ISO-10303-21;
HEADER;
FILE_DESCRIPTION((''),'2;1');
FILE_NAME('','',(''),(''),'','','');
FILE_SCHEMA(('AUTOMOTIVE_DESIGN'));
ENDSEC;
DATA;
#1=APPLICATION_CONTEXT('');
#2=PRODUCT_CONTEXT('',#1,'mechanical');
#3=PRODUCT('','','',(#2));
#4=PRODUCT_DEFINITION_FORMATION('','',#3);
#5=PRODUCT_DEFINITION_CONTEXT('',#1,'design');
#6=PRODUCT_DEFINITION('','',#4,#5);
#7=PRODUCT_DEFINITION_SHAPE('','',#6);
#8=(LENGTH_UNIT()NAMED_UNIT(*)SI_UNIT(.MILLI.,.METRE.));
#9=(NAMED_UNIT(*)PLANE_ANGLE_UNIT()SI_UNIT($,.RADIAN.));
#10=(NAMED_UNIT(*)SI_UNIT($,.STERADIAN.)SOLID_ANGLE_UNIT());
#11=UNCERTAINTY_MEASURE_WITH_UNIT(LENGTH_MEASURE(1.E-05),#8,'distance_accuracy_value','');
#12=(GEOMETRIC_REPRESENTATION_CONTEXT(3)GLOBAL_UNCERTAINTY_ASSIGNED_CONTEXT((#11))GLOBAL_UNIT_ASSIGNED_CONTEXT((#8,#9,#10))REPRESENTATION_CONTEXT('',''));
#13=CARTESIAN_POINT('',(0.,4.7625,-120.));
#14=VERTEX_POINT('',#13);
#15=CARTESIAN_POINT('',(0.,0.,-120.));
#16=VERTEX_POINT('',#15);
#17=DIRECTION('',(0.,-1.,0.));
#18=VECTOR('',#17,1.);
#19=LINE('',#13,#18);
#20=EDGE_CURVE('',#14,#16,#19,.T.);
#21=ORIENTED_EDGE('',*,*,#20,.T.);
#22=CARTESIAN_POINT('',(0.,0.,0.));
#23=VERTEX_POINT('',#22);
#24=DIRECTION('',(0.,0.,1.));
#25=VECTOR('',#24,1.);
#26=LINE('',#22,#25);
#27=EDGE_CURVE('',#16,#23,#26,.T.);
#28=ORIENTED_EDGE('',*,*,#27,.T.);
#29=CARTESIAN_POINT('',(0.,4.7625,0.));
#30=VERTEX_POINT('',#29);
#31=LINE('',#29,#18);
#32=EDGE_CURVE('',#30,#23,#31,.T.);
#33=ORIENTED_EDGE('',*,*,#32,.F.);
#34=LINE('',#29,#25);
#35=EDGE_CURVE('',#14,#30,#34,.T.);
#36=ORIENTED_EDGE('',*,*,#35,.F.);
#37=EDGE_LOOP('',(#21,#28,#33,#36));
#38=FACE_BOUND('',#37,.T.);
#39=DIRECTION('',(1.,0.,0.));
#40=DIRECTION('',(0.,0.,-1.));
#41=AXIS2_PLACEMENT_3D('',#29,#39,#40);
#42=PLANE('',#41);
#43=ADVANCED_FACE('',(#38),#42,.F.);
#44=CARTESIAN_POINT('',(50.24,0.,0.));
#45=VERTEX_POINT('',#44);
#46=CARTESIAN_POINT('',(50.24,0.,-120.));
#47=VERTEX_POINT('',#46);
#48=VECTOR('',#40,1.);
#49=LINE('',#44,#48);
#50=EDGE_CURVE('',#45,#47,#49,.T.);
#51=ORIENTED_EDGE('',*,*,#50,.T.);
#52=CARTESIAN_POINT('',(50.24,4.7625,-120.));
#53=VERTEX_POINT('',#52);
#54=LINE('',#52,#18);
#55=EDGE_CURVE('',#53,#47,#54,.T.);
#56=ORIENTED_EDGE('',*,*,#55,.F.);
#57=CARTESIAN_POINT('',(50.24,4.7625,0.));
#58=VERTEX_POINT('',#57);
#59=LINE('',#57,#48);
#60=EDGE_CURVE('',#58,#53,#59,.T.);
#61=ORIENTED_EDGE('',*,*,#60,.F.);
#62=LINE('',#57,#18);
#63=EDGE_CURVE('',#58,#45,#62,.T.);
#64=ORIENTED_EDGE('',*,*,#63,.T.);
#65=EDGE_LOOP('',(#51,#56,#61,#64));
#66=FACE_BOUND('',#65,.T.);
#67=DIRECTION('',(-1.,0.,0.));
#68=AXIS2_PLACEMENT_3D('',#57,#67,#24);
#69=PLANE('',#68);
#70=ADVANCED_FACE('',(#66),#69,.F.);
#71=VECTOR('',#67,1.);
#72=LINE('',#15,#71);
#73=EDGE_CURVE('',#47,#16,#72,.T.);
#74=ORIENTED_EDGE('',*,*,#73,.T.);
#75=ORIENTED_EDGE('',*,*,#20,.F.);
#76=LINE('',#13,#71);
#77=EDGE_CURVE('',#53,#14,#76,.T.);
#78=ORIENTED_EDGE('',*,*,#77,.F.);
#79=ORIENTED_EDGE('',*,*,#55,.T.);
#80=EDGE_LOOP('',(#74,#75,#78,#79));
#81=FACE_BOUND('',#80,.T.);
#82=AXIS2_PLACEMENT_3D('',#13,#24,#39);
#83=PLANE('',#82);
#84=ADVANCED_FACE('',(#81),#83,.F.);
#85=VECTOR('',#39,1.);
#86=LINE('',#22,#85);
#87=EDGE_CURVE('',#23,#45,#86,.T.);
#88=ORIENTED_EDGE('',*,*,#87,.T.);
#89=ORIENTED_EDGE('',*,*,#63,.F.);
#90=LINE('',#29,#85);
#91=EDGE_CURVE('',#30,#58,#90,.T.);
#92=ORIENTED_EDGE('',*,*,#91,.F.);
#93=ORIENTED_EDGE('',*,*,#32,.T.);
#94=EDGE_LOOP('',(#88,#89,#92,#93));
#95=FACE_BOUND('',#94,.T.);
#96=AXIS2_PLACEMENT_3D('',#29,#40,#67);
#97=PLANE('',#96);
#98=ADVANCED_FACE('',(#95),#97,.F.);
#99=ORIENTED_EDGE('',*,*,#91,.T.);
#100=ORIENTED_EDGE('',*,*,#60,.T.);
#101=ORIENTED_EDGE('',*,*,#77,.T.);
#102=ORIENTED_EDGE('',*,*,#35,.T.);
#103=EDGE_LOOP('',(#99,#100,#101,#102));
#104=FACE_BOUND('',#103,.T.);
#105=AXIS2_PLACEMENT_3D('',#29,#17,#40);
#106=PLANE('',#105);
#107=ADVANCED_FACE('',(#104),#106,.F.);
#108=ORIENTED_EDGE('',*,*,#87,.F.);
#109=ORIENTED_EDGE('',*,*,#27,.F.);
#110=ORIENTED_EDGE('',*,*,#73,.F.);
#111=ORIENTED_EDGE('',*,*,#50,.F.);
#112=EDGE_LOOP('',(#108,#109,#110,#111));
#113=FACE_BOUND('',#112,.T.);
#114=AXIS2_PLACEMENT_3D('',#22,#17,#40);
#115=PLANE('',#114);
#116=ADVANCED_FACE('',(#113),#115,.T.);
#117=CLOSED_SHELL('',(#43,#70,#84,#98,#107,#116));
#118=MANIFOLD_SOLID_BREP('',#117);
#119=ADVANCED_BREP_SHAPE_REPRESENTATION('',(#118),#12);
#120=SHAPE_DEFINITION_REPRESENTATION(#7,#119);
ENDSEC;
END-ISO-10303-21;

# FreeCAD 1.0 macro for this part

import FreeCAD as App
import Part
import Sketcher
Q = App.Units.Quantity

doc = App.newDocument("Part")
body = doc.addObject("PartDesign::Body", "Body")

# Sketch on XZ plane
sketch1 = body.newObject("Sketcher::SketchObject", "Sketch")
sketch1.AttachmentSupport = (doc.getObject("XZ_Plane"), [""])
sketch1.MapMode = "FlatFace"
sketch1.addGeometry(Part.LineSegment(App.Vector(0, -120, 0), App.Vector(0, 0, 0)), False)
sketch1.addGeometry(Part.LineSegment(App.Vector(0, 0, 0), App.Vector(50, 0, 0)), False)
sketch1.addGeometry(Part.LineSegment(App.Vector(50, 0, 0), App.Vector(50, -120, 0)), False)
sketch1.addGeometry(Part.LineSegment(App.Vector(50, -120, 0), App.Vector(0, -120, 0)), False)
sketch1.addConstraint(Sketcher.Constraint("Coincident", 0, 2, 1, 1))
sketch1.addConstraint(Sketcher.Constraint("Coincident", 1, 2, 2, 1))
sketch1.addConstraint(Sketcher.Constraint("Coincident", 2, 2, 3, 1))
sketch1.addConstraint(Sketcher.Constraint("Coincident", 3, 2, 0, 1))
sketch1.addConstraint(Sketcher.Constraint("Vertical", 0))
sketch1.addConstraint(Sketcher.Constraint("Horizontal", 1))
sketch1.addConstraint(Sketcher.Constraint("Vertical", 2))
sketch1.addConstraint(Sketcher.Constraint("Horizontal", 3))
sketch1.addConstraint(Sketcher.Constraint("Coincident", 0, 2, -1, 1))
sketch1.addConstraint(Sketcher.Constraint("DistanceY", 0, 1, 0, 2, Q("120 mm")))
sketch1.addConstraint(Sketcher.Constraint("DistanceX", 1, 1, 1, 2, Q("50.24 mm")))
pad1 = body.newObject("PartDesign::Pad", "Pad")
pad1.Profile = sketch1
pad1.Length = 4.7625
pad1.Reversed = True

doc.recompute()
